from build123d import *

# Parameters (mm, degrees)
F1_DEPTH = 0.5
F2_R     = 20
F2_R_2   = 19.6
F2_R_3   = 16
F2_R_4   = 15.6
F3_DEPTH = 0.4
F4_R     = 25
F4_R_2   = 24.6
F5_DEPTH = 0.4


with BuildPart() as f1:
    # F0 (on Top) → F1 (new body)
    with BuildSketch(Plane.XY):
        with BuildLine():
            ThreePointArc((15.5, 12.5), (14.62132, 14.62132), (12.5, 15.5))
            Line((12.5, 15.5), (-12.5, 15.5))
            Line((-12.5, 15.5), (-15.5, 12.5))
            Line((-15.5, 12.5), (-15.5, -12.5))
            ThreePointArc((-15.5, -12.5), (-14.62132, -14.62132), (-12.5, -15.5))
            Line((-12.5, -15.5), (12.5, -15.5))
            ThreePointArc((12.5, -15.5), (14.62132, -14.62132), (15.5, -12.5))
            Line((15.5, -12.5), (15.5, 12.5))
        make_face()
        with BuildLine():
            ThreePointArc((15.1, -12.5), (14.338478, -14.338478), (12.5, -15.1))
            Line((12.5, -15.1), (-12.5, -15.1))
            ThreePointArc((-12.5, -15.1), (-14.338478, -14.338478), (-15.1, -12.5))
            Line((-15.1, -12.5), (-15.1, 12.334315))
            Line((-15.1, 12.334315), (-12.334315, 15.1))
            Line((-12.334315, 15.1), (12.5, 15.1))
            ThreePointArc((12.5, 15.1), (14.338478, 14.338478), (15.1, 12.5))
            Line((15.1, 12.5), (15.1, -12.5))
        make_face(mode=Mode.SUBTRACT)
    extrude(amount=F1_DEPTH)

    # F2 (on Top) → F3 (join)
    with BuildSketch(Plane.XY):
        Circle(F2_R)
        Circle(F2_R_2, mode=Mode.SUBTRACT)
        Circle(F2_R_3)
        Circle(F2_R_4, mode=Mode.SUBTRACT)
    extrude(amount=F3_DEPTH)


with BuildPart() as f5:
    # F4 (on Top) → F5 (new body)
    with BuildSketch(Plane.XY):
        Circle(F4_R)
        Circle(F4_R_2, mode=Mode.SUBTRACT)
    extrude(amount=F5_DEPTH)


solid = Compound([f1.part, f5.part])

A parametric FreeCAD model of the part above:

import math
import FreeCAD as App
import Part
import Sketcher

doc = App.newDocument("Part")
body = doc.addObject("PartDesign::Body", "Body")

# Sketch on XY plane
sketch1 = body.newObject("Sketcher::SketchObject", "Sketch")
sketch1.AttachmentSupport = (doc.getObject("XY_Plane"), [""])
sketch1.MapMode = "FlatFace"
sketch1.addGeometry(Part.ArcOfCircle(Part.Circle(App.Vector(12.5, 12.5, 0), App.Vector(0, 0, 1), 3), math.radians(0), math.radians(90)), False)
sketch1.addGeometry(Part.LineSegment(App.Vector(12.5, 15.5, 0), App.Vector(-12.5, 15.5, 0)), False)
sketch1.addGeometry(Part.LineSegment(App.Vector(-12.5, 15.5, 0), App.Vector(-15.5, 12.5, 0)), False)
sketch1.addGeometry(Part.LineSegment(App.Vector(-15.5, 12.5, 0), App.Vector(-15.5, -12.5, 0)), False)
sketch1.addGeometry(Part.ArcOfCircle(Part.Circle(App.Vector(-12.5, -12.5, 0), App.Vector(0, 0, 1), 3), math.radians(-180), math.radians(-90)), False)
sketch1.addGeometry(Part.LineSegment(App.Vector(-12.5, -15.5, 0), App.Vector(12.5, -15.5, 0)), False)
sketch1.addGeometry(Part.ArcOfCircle(Part.Circle(App.Vector(12.5, -12.5, 0), App.Vector(0, 0, 1), 3), math.radians(-90), math.radians(0)), False)
sketch1.addGeometry(Part.LineSegment(App.Vector(15.5, -12.5, 0), App.Vector(15.5, 12.5, 0)), False)
sketch1.addGeometry(Part.LineSegment(App.Vector(15.1, 12.5, 0), App.Vector(15.1, -12.5, 0)), False)
sketch1.addGeometry(Part.ArcOfCircle(Part.Circle(App.Vector(12.5, -12.5, 0), App.Vector(0, 0, 1), 2.6), math.radians(-90), math.radians(0)), False)
sketch1.addGeometry(Part.LineSegment(App.Vector(12.5, -15.1, 0), App.Vector(-12.5, -15.1, 0)), False)
sketch1.addGeometry(Part.ArcOfCircle(Part.Circle(App.Vector(-12.5, -12.5, 0), App.Vector(0, 0, 1), 2.6), math.radians(180), math.radians(270)), False)
sketch1.addGeometry(Part.LineSegment(App.Vector(-15.1, -12.5, 0), App.Vector(-15.1, 12.3, 0)), False)
sketch1.addGeometry(Part.LineSegment(App.Vector(-15.1, 12.3, 0), App.Vector(-12.3, 15.1, 0)), False)
sketch1.addGeometry(Part.LineSegment(App.Vector(-12.3, 15.1, 0), App.Vector(12.5, 15.1, 0)), False)
sketch1.addGeometry(Part.ArcOfCircle(Part.Circle(App.Vector(12.5, 12.5, 0), App.Vector(0, 0, 1), 2.6), math.radians(0), math.radians(90)), False)
sketch1.addConstraint(Sketcher.Constraint("Tangent", 0, 2, 1, 1))
sketch1.addConstraint(Sketcher.Constraint("Coincident", 1, 2, 2, 1))
sketch1.addConstraint(Sketcher.Constraint("Coincident", 2, 2, 3, 1))
sketch1.addConstraint(Sketcher.Constraint("Tangent", 3, 2, 4, 1))
sketch1.addConstraint(Sketcher.Constraint("Tangent", 4, 2, 5, 1))
sketch1.addConstraint(Sketcher.Constraint("Tangent", 5, 2, 6, 1))
sketch1.addConstraint(Sketcher.Constraint("Tangent", 6, 2, 7, 1))
sketch1.addConstraint(Sketcher.Constraint("Tangent", 7, 2, 0, 1))
sketch1.addConstraint(Sketcher.Constraint("Tangent", 8, 2, 9, 2))
sketch1.addConstraint(Sketcher.Constraint("Tangent", 9, 1, 10, 1))
sketch1.addConstraint(Sketcher.Constraint("Tangent", 10, 2, 11, 2))
sketch1.addConstraint(Sketcher.Constraint("Tangent", 11, 1, 12, 1))
sketch1.addConstraint(Sketcher.Constraint("Coincident", 12, 2, 13, 1))
sketch1.addConstraint(Sketcher.Constraint("Coincident", 13, 2, 14, 1))
sketch1.addConstraint(Sketcher.Constraint("Tangent", 14, 2, 15, 2))
sketch1.addConstraint(Sketcher.Constraint("Tangent", 15, 1, 8, 1))
sketch1.addConstraint(Sketcher.Constraint("Horizontal", 1))
sketch1.addConstraint(Sketcher.Constraint("Vertical", 3))
sketch1.addConstraint(Sketcher.Constraint("Horizontal", 5))
sketch1.addConstraint(Sketcher.Constraint("Vertical", 7))
sketch1.addConstraint(Sketcher.Constraint("Vertical", 8))
sketch1.addConstraint(Sketcher.Constraint("Horizontal", 10))
sketch1.addConstraint(Sketcher.Constraint("Vertical", 12))
sketch1.addConstraint(Sketcher.Constraint("Horizontal", 14))
sketch1.addConstraint(Sketcher.Constraint("Coincident", 9, 3, 6, 3))
sketch1.addConstraint(Sketcher.Constraint("Coincident", 11, 3, 4, 3))
sketch1.addConstraint(Sketcher.Constraint("Coincident", 15, 3, 0, 3))
sketch1.addConstraint(Sketcher.Constraint("Equal", 0, 4))
sketch1.addConstraint(Sketcher.Constraint("Equal", 4, 6))
sketch1.addConstraint(Sketcher.Constraint("Symmetric", 0, 3, 4, 3, -1, 1))
sketch1.addConstraint(Sketcher.Constraint("Parallel", 2, 13))
sketch1.addConstraint(Sketcher.Constraint("Horizontal", 15, 3, 2, 2))
sketch1.addConstraint(Sketcher.Constraint("Vertical", 11, 3, 1, 2))
sketch1.addConstraint(Sketcher.Constraint("Equal", 10, 3))
sketch1.addConstraint(Sketcher.Constraint("Radius", 0, 3.000001))
sketch1.addConstraint(Sketcher.Constraint("Radius", 9, 2.599999))
sketch1.addConstraint(Sketcher.Constraint("DistanceX", 1, 2, 1, 1, 25.0))
sketch1.addConstraint(Sketcher.Constraint("Distance", 13, 3.911269))
pad1 = body.newObject("PartDesign::Pad", "Pad")
pad1.Profile = sketch1
pad1.Length = 0.5

# Sketch on XY plane
sketch2 = body.newObject("Sketcher::SketchObject", "Sketch001")
sketch2.AttachmentSupport = (doc.getObject("XY_Plane"), [""])
sketch2.MapMode = "FlatFace"
sketch2.addGeometry(Part.Circle(App.Vector(0, 0, 0), App.Vector(0, 0, 1), 20), False)
sketch2.addGeometry(Part.Circle(App.Vector(0, 0, 0), App.Vector(0, 0, 1), 20), False)
sketch2.addGeometry(Part.Circle(App.Vector(0, 0, 0), App.Vector(0, 0, 1), 16), False)
sketch2.addGeometry(Part.Circle(App.Vector(0, 0, 0), App.Vector(0, 0, 1), 16), False)
sketch2.addConstraint(Sketcher.Constraint("Coincident", 0, 3, -1, 1))
sketch2.addConstraint(Sketcher.Constraint("Coincident", 1, 3, -1, 1))
sketch2.addConstraint(Sketcher.Constraint("Coincident", 2, 3, -1, 1))
sketch2.addConstraint(Sketcher.Constraint("Coincident", 3, 3, -1, 1))
sketch2.addConstraint(Sketcher.Constraint("Diameter", 0, 40.0))
sketch2.addConstraint(Sketcher.Constraint("Diameter", 2, 32.0))
sketch2.addConstraint(Sketcher.Constraint("Diameter", 1, 39.2))
sketch2.addConstraint(Sketcher.Constraint("Diameter", 3, 31.2))
pad2 = body.newObject("PartDesign::Pad", "Pad001")
pad2.Profile = sketch2
pad2.Length = 0.4
body2 = doc.addObject("PartDesign::Body", "Body001")

# Sketch on XY plane
sketch3 = body2.newObject("Sketcher::SketchObject", "Sketch002")
sketch3.AttachmentSupport = (doc.getObject("XY_Plane001"), [""])
sketch3.MapMode = "FlatFace"
sketch3.addGeometry(Part.Circle(App.Vector(0, 0, 0), App.Vector(0, 0, 1), 25), False)
sketch3.addGeometry(Part.Circle(App.Vector(0, 0, 0), App.Vector(0, 0, 1), 25), False)
sketch3.addConstraint(Sketcher.Constraint("Coincident", 0, 3, -1, 1))
sketch3.addConstraint(Sketcher.Constraint("Coincident", 1, 3, -1, 1))
sketch3.addConstraint(Sketcher.Constraint("Diameter", 0, 50.0))
sketch3.addConstraint(Sketcher.Constraint("Diameter", 1, 49.2))
pad3 = body2.newObject("PartDesign::Pad", "Pad002")
pad3.Profile = sketch3
pad3.Length = 0.4

doc.recompute()
